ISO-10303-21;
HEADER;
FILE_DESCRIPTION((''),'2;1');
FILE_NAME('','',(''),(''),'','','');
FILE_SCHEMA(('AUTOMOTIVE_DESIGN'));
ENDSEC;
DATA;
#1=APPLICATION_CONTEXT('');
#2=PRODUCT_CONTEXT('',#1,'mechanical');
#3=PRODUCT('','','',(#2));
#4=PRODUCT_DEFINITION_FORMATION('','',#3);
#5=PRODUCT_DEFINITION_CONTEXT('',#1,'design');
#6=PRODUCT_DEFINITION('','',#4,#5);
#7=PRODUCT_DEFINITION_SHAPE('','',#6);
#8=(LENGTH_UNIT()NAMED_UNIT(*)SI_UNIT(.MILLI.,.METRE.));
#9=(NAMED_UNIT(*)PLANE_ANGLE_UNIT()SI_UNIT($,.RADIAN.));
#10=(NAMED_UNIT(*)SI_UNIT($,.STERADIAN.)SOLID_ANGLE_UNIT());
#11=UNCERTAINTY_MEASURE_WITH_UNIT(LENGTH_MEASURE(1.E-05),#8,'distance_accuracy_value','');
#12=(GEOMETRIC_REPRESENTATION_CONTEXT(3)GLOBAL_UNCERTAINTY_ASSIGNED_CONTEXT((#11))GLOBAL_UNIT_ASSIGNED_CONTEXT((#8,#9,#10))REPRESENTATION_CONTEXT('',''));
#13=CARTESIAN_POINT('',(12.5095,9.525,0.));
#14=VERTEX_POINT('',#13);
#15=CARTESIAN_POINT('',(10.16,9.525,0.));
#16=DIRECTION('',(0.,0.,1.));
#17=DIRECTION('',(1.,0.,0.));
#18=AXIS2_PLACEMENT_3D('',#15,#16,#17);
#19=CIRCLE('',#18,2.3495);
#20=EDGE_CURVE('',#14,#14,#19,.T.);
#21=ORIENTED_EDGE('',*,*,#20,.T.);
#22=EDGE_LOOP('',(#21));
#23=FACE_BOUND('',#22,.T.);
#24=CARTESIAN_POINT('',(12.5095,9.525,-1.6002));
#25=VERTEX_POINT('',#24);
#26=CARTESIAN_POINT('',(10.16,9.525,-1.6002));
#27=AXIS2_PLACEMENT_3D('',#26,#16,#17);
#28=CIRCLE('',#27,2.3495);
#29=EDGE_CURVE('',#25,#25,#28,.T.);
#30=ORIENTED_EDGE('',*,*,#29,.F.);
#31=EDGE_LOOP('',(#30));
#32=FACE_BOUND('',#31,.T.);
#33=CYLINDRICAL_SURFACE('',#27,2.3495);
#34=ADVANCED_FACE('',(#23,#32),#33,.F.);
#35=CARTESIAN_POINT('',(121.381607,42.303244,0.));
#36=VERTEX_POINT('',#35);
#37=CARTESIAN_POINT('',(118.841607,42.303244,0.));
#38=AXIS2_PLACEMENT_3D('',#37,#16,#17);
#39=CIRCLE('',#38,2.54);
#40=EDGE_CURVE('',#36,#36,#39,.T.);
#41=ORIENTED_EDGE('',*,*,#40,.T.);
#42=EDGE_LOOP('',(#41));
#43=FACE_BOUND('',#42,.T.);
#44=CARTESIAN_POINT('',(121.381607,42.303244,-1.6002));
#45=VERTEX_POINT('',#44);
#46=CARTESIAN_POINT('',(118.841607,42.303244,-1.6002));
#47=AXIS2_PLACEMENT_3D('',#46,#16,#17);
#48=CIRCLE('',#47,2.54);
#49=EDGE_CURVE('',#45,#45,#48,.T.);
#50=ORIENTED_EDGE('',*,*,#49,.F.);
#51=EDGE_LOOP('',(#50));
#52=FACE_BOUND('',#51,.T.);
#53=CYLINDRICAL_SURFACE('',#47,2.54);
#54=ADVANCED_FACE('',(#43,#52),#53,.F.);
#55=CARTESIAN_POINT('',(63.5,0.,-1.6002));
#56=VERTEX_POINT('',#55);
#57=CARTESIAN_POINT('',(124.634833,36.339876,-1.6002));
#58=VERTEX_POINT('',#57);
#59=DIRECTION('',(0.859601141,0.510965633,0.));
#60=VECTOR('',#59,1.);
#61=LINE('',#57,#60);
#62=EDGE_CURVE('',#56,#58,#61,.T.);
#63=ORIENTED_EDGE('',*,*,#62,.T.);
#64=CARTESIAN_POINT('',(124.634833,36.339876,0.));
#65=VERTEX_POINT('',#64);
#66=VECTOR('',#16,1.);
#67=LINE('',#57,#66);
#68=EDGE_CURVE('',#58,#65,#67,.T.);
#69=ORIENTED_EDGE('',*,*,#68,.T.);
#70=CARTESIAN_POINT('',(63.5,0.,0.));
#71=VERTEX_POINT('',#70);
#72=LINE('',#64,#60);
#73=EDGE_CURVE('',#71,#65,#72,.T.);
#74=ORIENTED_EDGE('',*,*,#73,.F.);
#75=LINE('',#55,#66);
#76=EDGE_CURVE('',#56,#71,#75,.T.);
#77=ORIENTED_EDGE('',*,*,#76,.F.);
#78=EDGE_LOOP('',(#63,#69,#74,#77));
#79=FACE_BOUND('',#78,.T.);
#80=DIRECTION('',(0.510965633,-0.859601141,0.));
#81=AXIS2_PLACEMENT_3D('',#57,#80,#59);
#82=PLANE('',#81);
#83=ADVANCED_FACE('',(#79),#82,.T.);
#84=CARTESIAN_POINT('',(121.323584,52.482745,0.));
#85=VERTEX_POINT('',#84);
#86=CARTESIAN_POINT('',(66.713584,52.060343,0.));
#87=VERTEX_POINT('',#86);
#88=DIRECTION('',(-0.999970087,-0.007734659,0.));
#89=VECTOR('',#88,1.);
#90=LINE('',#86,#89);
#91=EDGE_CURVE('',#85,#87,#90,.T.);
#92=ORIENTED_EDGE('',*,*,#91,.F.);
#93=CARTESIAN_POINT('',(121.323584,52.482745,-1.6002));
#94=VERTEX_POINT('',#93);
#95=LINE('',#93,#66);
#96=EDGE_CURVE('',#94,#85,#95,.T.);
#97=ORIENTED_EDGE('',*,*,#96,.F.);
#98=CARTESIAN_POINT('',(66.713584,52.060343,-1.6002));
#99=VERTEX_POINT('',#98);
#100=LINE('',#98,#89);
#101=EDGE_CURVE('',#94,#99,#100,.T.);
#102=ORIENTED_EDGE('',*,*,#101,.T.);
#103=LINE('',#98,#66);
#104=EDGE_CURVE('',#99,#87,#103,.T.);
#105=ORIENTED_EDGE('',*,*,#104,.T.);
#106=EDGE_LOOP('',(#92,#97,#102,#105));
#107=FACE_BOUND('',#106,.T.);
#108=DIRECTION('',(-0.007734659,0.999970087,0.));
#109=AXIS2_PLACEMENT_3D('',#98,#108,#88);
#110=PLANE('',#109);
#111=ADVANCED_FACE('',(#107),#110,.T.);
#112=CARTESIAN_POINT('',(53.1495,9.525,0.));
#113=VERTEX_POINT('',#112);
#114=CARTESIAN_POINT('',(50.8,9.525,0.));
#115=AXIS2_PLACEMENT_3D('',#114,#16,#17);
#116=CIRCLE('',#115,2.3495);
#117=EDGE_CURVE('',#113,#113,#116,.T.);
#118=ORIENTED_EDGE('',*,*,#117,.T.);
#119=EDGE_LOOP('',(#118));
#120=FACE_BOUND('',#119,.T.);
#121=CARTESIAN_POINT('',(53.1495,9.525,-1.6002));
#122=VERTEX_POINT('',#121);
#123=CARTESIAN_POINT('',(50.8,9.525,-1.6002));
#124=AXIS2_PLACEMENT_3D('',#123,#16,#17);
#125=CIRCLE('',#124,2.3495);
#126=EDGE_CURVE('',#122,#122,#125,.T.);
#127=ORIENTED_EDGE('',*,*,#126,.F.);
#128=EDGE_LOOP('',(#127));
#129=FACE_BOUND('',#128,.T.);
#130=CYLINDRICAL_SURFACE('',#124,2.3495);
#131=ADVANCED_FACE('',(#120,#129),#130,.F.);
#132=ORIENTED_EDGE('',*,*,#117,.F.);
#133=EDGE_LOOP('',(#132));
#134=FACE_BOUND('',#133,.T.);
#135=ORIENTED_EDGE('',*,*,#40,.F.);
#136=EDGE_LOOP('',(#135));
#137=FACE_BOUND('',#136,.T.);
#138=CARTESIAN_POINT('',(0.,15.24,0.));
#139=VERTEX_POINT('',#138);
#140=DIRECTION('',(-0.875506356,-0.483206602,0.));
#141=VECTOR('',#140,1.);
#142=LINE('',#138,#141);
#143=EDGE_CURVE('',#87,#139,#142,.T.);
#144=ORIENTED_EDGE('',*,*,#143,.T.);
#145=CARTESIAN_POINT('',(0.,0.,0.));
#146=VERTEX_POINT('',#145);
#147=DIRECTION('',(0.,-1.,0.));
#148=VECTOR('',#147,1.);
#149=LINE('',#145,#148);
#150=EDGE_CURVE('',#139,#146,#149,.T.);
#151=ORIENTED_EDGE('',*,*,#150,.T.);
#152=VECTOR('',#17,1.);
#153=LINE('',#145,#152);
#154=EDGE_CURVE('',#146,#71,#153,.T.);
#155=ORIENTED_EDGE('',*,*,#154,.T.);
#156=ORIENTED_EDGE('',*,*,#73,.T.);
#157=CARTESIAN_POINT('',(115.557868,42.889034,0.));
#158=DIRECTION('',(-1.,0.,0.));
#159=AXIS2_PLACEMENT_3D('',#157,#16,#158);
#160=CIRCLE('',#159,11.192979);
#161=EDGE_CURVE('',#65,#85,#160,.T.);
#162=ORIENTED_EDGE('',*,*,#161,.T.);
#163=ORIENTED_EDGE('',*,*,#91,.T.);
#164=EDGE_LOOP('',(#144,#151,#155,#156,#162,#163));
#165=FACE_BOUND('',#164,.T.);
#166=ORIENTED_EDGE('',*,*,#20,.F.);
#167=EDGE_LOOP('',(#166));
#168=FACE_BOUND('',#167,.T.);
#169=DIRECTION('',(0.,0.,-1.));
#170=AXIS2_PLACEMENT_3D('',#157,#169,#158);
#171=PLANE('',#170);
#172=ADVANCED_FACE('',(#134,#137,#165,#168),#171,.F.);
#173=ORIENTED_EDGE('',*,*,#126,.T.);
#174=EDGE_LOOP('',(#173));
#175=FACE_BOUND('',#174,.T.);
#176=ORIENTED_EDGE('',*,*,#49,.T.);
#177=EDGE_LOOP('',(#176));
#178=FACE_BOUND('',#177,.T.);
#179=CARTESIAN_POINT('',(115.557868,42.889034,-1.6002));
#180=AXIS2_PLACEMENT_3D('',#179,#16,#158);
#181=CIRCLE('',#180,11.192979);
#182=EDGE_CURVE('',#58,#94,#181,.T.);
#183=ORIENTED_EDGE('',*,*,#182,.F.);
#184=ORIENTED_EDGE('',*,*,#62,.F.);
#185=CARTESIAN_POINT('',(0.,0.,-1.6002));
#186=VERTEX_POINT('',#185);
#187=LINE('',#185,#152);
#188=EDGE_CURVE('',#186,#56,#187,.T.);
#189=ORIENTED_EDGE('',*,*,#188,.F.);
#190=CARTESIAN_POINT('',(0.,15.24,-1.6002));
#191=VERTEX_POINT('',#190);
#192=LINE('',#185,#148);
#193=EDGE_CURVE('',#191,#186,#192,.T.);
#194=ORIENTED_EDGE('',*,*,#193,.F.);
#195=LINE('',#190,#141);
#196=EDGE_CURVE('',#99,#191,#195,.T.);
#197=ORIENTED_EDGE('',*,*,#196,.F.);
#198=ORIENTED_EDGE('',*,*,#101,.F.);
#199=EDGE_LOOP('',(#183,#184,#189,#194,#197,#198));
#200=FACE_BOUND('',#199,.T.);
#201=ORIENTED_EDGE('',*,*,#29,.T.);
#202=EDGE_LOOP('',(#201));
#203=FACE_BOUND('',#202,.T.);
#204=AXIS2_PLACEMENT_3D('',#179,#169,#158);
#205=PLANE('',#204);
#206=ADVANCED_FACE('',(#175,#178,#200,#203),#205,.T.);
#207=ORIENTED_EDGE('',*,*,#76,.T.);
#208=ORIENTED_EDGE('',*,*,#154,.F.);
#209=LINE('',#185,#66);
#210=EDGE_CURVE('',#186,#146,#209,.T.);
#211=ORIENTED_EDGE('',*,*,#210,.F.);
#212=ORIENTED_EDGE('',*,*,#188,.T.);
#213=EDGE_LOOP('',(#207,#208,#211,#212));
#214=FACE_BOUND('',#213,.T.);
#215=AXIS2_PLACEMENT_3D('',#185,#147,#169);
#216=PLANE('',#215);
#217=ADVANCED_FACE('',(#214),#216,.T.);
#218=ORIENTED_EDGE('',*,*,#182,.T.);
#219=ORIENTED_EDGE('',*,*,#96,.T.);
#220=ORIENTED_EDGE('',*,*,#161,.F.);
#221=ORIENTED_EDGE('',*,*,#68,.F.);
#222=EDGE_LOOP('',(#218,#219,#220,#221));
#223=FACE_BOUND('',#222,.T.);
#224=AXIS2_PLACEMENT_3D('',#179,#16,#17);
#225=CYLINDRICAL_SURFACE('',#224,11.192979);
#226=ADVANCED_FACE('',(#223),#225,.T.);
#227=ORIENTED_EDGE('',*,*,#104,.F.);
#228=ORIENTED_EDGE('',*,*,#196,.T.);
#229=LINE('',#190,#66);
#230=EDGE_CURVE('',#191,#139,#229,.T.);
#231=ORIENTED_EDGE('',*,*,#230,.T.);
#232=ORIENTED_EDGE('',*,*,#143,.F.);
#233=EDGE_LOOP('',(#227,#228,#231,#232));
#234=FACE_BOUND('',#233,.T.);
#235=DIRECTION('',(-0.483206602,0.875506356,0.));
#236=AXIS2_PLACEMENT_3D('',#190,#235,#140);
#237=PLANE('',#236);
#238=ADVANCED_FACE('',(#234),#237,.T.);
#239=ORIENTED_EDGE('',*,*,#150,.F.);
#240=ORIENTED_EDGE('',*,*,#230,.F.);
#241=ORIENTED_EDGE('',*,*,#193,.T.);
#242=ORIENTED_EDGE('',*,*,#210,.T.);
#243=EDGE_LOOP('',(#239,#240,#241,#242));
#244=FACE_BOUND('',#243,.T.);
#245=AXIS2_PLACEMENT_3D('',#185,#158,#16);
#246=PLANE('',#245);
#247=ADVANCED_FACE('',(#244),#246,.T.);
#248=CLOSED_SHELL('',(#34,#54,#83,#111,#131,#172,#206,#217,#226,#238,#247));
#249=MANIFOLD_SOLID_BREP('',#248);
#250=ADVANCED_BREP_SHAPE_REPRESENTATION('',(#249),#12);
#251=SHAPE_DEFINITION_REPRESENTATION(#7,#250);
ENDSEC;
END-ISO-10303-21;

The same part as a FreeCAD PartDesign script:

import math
import FreeCAD as App
import Part
import Sketcher
Q = App.Units.Quantity

doc = App.newDocument("Part")
body = doc.addObject("PartDesign::Body", "Body")

# Sketch on XY plane
sketch1 = body.newObject("Sketcher::SketchObject", "Sketch")
sketch1.AttachmentSupport = (doc.getObject("XY_Plane"), [""])
sketch1.MapMode = "FlatFace"
sketch1.addGeometry(Part.LineSegment(App.Vector(0, 15.24, 0), App.Vector(0, 0, 0)), False)
sketch1.addGeometry(Part.LineSegment(App.Vector(0, 0, 0), App.Vector(63.5, 0, 0)), False)
sketch1.addGeometry(Part.LineSegment(App.Vector(63.5, 0, 0), App.Vector(124.634833, 36.339876, 0)), False)
sketch1.addGeometry(Part.ArcOfCircle(Part.Circle(App.Vector(115.557868, 42.889034, 0), App.Vector(0, 0, 1), 11.192979), math.radians(-35.810981), math.radians(58.994589)), False)
sketch1.addGeometry(Part.LineSegment(App.Vector(121.323584, 52.482745, 0), App.Vector(66.713584, 52.060343, 0)), False)
sketch1.addGeometry(Part.LineSegment(App.Vector(66.713584, 52.060343, 0), App.Vector(0, 15.24, 0)), False)
sketch1.addGeometry(Part.Circle(App.Vector(50.8, 9.525, 0), App.Vector(0, 0, 1), 2.3495), False)
sketch1.addGeometry(Part.Circle(App.Vector(10.16, 9.525, 0), App.Vector(0, 0, 1), 2.3495), False)
sketch1.addGeometry(Part.Circle(App.Vector(118.841607, 42.303244, 0), App.Vector(0, 0, 1), 2.54), False)
sketch1.addConstraint(Sketcher.Constraint("Coincident", 0, 2, 1, 1))
sketch1.addConstraint(Sketcher.Constraint("Coincident", 1, 2, 2, 1))
sketch1.addConstraint(Sketcher.Constraint("Coincident", 2, 2, 3, 1))
sketch1.addConstraint(Sketcher.Constraint("Coincident", 3, 2, 4, 1))
sketch1.addConstraint(Sketcher.Constraint("Coincident", 4, 2, 5, 1))
sketch1.addConstraint(Sketcher.Constraint("Coincident", 5, 2, 0, 1))
sketch1.addConstraint(Sketcher.Constraint("Vertical", 0))
sketch1.addConstraint(Sketcher.Constraint("Horizontal", 1))
sketch1.addConstraint(Sketcher.Constraint("Coincident", 0, 2, -1, 1))
sketch1.addConstraint(Sketcher.Constraint("Equal", 6, 7))
sketch1.addConstraint(Sketcher.Constraint("Horizontal", 6, 3, 7, 3))
sketch1.addConstraint(Sketcher.Constraint("Diameter", 8, Q("0.2 in")))
sketch1.addConstraint(Sketcher.Constraint("Distance", 5, Q("3 in")))
sketch1.addConstraint(Sketcher.Constraint("Diameter", 6, Q("0.185 in")))
sketch1.addConstraint(Sketcher.Constraint("DistanceX", 1, 1, 1, 2, Q("2.5 in")))
sketch1.addConstraint(Sketcher.Constraint("DistanceY", 0, 2, 0, 1, Q("0.6 in")))
sketch1.addConstraint(Sketcher.Constraint("DistanceX", -1, 1, 6, 3, Q("2 in")))
sketch1.addConstraint(Sketcher.Constraint("Distance", 2, Q("2.8 in")))
sketch1.addConstraint(Sketcher.Constraint("DistanceX", -1, 1, 7, 3, Q("0.4 in")))
sketch1.addConstraint(Sketcher.Constraint("DistanceX", 4, 2, 3, 2, Q("2.15 in")))
sketch1.addConstraint(Sketcher.Constraint("DistanceY", -1, 1, 6, 3, Q("0.375 in")))
sketch1.addConstraint(Sketcher.Constraint("Radius", 3, 11.192979))
sketch1.addConstraint(Sketcher.Constraint("DistanceY", 8, 3, 3, 2, 10.179502))
sketch1.addConstraint(Sketcher.Constraint("DistanceY", 8, 3, 4, 2, 9.757099))
sketch1.addConstraint(Sketcher.Constraint("DistanceX", -1, 1, 3, 3, 115.557868))
sketch1.addConstraint(Sketcher.Constraint("DistanceX", 3, 3, 8, 3, 3.283739))
sketch1.addConstraint(Sketcher.Constraint("DistanceY", 8, 3, 3, 3, 0.585791))
pad1 = body.newObject("PartDesign::Pad", "Pad")
pad1.Profile = sketch1
pad1.Length = Q("0.063 in")
pad1.Reversed = True

doc.recompute()
